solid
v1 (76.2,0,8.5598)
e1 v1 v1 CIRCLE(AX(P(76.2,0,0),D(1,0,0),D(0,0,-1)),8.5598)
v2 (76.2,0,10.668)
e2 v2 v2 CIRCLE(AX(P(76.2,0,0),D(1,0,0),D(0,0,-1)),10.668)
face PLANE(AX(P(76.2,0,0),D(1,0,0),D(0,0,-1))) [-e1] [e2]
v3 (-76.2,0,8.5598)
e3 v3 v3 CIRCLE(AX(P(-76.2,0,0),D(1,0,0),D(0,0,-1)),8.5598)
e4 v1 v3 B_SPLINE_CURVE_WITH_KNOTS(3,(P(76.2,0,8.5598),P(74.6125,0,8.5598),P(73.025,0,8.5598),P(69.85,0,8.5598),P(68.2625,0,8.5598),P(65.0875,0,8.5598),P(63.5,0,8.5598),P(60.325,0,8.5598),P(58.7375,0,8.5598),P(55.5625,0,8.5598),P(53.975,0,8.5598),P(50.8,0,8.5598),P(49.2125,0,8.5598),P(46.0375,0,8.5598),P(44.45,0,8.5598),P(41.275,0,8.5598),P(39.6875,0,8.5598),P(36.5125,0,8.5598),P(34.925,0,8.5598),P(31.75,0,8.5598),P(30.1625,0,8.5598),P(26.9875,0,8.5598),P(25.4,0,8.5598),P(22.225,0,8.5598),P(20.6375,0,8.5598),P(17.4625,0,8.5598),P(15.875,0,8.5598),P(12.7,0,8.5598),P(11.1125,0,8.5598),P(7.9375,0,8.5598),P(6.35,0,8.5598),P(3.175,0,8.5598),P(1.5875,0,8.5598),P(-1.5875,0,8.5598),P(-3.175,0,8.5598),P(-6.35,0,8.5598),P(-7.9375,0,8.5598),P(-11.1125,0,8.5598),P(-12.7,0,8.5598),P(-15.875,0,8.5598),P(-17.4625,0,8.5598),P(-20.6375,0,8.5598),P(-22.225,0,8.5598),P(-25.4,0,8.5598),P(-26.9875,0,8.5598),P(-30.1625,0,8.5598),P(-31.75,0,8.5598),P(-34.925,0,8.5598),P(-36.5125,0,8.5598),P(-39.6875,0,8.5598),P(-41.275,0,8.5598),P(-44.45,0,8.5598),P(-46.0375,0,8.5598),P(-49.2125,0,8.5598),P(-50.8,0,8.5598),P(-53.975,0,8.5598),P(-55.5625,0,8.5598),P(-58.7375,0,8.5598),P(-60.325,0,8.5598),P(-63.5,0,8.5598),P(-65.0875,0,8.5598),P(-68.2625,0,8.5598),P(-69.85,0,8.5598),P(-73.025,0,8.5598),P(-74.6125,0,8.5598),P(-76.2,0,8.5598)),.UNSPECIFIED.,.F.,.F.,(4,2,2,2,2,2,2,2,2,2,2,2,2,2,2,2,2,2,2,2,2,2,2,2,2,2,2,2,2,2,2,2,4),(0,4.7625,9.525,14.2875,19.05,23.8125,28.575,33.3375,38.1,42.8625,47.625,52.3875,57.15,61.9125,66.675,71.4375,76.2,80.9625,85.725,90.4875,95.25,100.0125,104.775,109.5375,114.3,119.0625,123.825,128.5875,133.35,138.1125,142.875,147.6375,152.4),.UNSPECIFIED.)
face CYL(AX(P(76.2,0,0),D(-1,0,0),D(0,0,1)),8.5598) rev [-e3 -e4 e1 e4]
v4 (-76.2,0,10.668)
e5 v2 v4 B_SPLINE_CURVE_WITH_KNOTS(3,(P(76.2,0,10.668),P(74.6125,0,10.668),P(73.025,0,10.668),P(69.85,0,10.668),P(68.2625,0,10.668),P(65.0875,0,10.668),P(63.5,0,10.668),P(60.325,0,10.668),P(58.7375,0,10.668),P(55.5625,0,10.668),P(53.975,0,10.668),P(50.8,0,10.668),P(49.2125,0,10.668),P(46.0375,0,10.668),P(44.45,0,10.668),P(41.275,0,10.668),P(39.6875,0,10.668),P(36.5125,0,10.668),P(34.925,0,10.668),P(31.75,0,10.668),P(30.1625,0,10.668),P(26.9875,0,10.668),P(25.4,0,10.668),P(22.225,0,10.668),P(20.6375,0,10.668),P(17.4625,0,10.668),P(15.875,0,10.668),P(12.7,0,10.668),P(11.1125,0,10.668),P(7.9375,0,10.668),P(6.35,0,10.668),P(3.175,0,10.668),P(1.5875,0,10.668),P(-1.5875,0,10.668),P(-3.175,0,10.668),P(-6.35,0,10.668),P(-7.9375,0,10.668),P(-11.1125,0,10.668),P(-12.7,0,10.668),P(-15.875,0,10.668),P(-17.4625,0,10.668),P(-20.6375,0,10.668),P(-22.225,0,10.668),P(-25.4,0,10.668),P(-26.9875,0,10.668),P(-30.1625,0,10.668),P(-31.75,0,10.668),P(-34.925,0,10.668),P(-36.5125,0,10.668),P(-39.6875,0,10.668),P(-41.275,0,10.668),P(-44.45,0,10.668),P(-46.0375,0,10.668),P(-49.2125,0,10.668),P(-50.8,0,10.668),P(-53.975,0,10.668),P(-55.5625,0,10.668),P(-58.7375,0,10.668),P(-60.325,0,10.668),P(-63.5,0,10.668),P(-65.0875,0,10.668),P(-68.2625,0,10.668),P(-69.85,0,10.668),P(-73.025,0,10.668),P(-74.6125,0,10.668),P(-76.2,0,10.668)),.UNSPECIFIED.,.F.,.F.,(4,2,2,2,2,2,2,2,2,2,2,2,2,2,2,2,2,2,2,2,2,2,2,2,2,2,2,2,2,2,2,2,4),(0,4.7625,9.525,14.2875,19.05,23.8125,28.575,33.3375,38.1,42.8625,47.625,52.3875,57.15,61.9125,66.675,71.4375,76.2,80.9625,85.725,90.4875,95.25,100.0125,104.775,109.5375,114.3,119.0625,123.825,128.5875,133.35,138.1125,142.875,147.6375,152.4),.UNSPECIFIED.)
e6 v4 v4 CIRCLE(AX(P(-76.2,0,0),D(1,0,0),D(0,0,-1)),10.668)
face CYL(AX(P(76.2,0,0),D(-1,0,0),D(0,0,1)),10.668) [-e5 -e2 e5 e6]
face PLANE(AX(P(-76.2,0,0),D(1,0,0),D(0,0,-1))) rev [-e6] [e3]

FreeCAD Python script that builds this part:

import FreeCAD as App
import Part
import Sketcher
from FreeCAD import Vector
Q = App.Units.Quantity

doc = App.newDocument("Part")
body = doc.addObject("PartDesign::Body", "Body")

sketch1 = body.newObject("Sketcher::SketchObject", "Sketch")
sketch1.AttachmentSupport = (doc.getObject("YZ_Plane"), [""])
sketch1.MapMode = "FlatFace"
sketch1.addGeometry(Part.Circle(Vector(0, 0, 0), Vector(0, 0, 1), 11), False)
sketch1.addGeometry(Part.Circle(Vector(0, 0, 0), Vector(0, 0, 1), 9), False)
sketch1.addConstraint(Sketcher.Constraint("Coincident", 0, 3, -1, 1))
sketch1.addConstraint(Sketcher.Constraint("Coincident", 1, 3, -1, 1))
sketch1.addConstraint(Sketcher.Constraint("Diameter", 0, Q("0.84 in")))
sketch1.addConstraint(Sketcher.Constraint("Diameter", 1, Q("0.674 in")))
pad1 = body.newObject("PartDesign::Pad", "Pad")
pad1.Profile = sketch1
pad1.Length = Q("6 in")
pad1.Midplane = True

doc.recompute()
